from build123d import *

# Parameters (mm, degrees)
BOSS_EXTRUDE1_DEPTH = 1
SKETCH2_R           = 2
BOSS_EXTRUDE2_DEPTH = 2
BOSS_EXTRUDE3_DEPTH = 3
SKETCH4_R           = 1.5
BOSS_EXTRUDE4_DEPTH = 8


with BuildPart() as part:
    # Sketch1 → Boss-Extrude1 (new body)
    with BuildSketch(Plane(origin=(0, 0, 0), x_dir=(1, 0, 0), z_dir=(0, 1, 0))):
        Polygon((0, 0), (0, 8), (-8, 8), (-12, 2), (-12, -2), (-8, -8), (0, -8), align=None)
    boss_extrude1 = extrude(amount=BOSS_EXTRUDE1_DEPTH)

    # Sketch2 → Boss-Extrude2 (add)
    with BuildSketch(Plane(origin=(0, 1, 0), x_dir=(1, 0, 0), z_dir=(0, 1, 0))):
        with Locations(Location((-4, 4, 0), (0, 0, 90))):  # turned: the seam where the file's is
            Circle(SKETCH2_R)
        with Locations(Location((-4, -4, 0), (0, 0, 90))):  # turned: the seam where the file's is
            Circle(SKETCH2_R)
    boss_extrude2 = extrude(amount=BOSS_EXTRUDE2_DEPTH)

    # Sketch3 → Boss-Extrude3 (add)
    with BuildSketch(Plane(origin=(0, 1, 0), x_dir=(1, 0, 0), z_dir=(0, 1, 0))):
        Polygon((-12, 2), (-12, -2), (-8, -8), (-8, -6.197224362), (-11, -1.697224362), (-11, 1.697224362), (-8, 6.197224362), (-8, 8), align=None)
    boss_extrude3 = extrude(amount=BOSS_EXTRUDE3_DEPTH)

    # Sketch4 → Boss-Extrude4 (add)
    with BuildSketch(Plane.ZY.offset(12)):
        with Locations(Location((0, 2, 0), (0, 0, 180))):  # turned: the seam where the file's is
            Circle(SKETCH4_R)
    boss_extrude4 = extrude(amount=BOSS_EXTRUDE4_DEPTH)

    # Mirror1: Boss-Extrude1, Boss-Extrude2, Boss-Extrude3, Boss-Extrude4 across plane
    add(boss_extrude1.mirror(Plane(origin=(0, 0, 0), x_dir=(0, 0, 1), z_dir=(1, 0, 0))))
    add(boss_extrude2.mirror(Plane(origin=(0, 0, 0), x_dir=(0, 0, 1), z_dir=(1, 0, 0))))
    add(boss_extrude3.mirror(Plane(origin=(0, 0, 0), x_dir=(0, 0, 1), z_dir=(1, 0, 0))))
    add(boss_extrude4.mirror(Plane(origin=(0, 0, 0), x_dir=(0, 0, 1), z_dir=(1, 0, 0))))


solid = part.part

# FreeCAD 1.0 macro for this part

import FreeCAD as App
import Part
import Sketcher

doc = App.newDocument("Part")
body = doc.addObject("PartDesign::Body", "Body")

sketch1 = body.newObject("Sketcher::SketchObject", "Sketch")
sketch1.AttachmentSupport = (doc.getObject("XZ_Plane"), [""])
sketch1.MapMode = "FlatFace"
sketch1.addGeometry(Part.LineSegment(App.Vector(0, -8, 0), App.Vector(-8, -8, 0)), False)
sketch1.addGeometry(Part.LineSegment(App.Vector(-8, -8, 0), App.Vector(-12, -2, 0)), False)
sketch1.addGeometry(Part.LineSegment(App.Vector(-12, -2, 0), App.Vector(-12, 2, 0)), False)
sketch1.addGeometry(Part.LineSegment(App.Vector(-12, 2, 0), App.Vector(-8, 8, 0)), False)
sketch1.addGeometry(Part.LineSegment(App.Vector(-8, 8, 0), App.Vector(0, 8, 0)), False)
sketch1.addGeometry(Part.LineSegment(App.Vector(0, 8, 0), App.Vector(0, -8, 0)), False)
sketch1.addConstraint(Sketcher.Constraint("Coincident", 0, 2, 1, 1))
sketch1.addConstraint(Sketcher.Constraint("Coincident", 1, 2, 2, 1))
sketch1.addConstraint(Sketcher.Constraint("Coincident", 2, 2, 3, 1))
sketch1.addConstraint(Sketcher.Constraint("Coincident", 3, 2, 4, 1))
sketch1.addConstraint(Sketcher.Constraint("Coincident", 4, 2, 5, 1))
sketch1.addConstraint(Sketcher.Constraint("Coincident", 5, 2, 0, 1))
sketch1.addConstraint(Sketcher.Constraint("Horizontal", 0))
sketch1.addConstraint(Sketcher.Constraint("Vertical", 2))
sketch1.addConstraint(Sketcher.Constraint("Horizontal", 4))
sketch1.addConstraint(Sketcher.Constraint("Vertical", 5))
sketch1.addConstraint(Sketcher.Constraint("Symmetric", 4, 2, 5, 2, -1, 1))
sketch1.addConstraint(Sketcher.Constraint("Vertical", 0, 2, 3, 2))
sketch1.addConstraint(Sketcher.Constraint("Equal", 1, 3))
sketch1.addConstraint(Sketcher.Constraint("DistanceX", 0, 2, 0, 1, 8.0))
sketch1.addConstraint(Sketcher.Constraint("DistanceY", 2, 1, 2, 2, 4.0))
sketch1.addConstraint(Sketcher.Constraint("DistanceY", 5, 2, 5, 1, 16.0))
sketch1.addConstraint(Sketcher.Constraint("DistanceX", 1, 2, -1, 1, 12.0))
pad1 = body.newObject("PartDesign::Pad", "Pad")
pad1.Profile = sketch1
pad1.Length = 1
pad1.Reversed = True

sketch2 = body.newObject("Sketcher::SketchObject", "Sketch001")
sketch2.AttachmentSupport = (doc.getObject("XZ_Plane"), [""])
sketch2.MapMode = "FlatFace"
sketch2.AttachmentOffset = App.Placement(App.Vector(0, 0, -1), App.Rotation())
sketch2.addGeometry(Part.Circle(App.Vector(-4, -4, 0), App.Vector(0, 0, 1), 2), False)
sketch2.addGeometry(Part.Circle(App.Vector(-4, 4, 0), App.Vector(0, 0, 1), 2), False)
sketch2.addConstraint(Sketcher.Constraint("Equal", 0, 1))
sketch2.addConstraint(Sketcher.Constraint("Symmetric", 0, 3, 1, 3, -1))
sketch2.addConstraint(Sketcher.Constraint("Diameter", 0, 4.0))
sketch2.addConstraint(Sketcher.Constraint("DistanceX", 0, 3, -1, 1, 4.0))
sketch2.addConstraint(Sketcher.Constraint("DistanceY", 0, 3, -1, 1, 4.0))
pad2 = body.newObject("PartDesign::Pad", "Pad001")
pad2.Profile = sketch2
pad2.Length = 2
pad2.Reversed = True

sketch3 = body.newObject("Sketcher::SketchObject", "Sketch002")
sketch3.AttachmentSupport = (doc.getObject("XZ_Plane"), [""])
sketch3.MapMode = "FlatFace"
sketch3.AttachmentOffset = App.Placement(App.Vector(0, 0, -1), App.Rotation())
sketch3.addGeometry(Part.LineSegment(App.Vector(-12, -2, 0), App.Vector(-12, 2, 0)), False)
sketch3.addGeometry(Part.LineSegment(App.Vector(-12, 2, 0), App.Vector(-8, 8, 0)), False)
sketch3.addGeometry(Part.LineSegment(App.Vector(-8, 8, 0), App.Vector(-8, 6.197224, 0)), False)
sketch3.addGeometry(Part.LineSegment(App.Vector(-8, 6.197224, 0), App.Vector(-11, 1.697224, 0)), False)
sketch3.addGeometry(Part.LineSegment(App.Vector(-11, 1.697224, 0), App.Vector(-11, -1.697224, 0)), False)
sketch3.addGeometry(Part.LineSegment(App.Vector(-11, -1.697224, 0), App.Vector(-8, -6.197224, 0)), False)
sketch3.addGeometry(Part.LineSegment(App.Vector(-8, -6.197224, 0), App.Vector(-8, -8, 0)), False)
sketch3.addGeometry(Part.LineSegment(App.Vector(-8, -8, 0), App.Vector(-12, -2, 0)), False)
sketch3.addConstraint(Sketcher.Constraint("Coincident", 0, 2, 1, 1))
sketch3.addConstraint(Sketcher.Constraint("Coincident", 1, 2, 2, 1))
sketch3.addConstraint(Sketcher.Constraint("Coincident", 2, 2, 3, 1))
sketch3.addConstraint(Sketcher.Constraint("Coincident", 3, 2, 4, 1))
sketch3.addConstraint(Sketcher.Constraint("Coincident", 4, 2, 5, 1))
sketch3.addConstraint(Sketcher.Constraint("Coincident", 5, 2, 6, 1))
sketch3.addConstraint(Sketcher.Constraint("Coincident", 6, 2, 7, 1))
sketch3.addConstraint(Sketcher.Constraint("Coincident", 7, 2, 0, 1))
sketch3.addConstraint(Sketcher.Constraint("Vertical", 0))
sketch3.addConstraint(Sketcher.Constraint("Vertical", 2))
sketch3.addConstraint(Sketcher.Constraint("Vertical", 4))
sketch3.addConstraint(Sketcher.Constraint("Vertical", 6))
sketch3.addConstraint(Sketcher.Constraint("Symmetric", 2, 2, 5, 2, -1))
sketch3.addConstraint(Sketcher.Constraint("Parallel", 1, 3))
sketch3.addConstraint(Sketcher.Constraint("Parallel", 5, 7))
sketch3.addConstraint(Sketcher.Constraint("Equal", 2, 6))
sketch3.addConstraint(Sketcher.Constraint("Equal", 3, 5))
sketch3.addConstraint(Sketcher.Constraint("DistanceY", 0, 1, 0, 2, 4.0))
sketch3.addConstraint(Sketcher.Constraint("DistanceX", 0, 2, -1, 1, 12.0))
sketch3.addConstraint(Sketcher.Constraint("DistanceX", 1, 2, -1, 1, 8.0))
sketch3.addConstraint(Sketcher.Constraint("DistanceY", -1, 1, 1, 2, 8.0))
sketch3.addConstraint(Sketcher.Constraint("DistanceX", 3, 2, -1, 1, 11.0))
sketch3.addConstraint(Sketcher.Constraint("DistanceY", 4, 2, 4, 1, 3.394449))
pad3 = body.newObject("PartDesign::Pad", "Pad002")
pad3.Profile = sketch3
pad3.Length = 3
pad3.Reversed = True

sketch4 = body.newObject("Sketcher::SketchObject", "Sketch003")
sketch4.AttachmentSupport = (doc.getObject("YZ_Plane"), [""])
sketch4.MapMode = "FlatFace"
sketch4.AttachmentOffset = App.Placement(App.Vector(0, 0, -12), App.Rotation())
sketch4.addGeometry(Part.Circle(App.Vector(2, 0, 0), App.Vector(0, 0, 1), 1.5), False)
sketch4.addConstraint(Sketcher.Constraint("PointOnObject", 0, 3, -1))
sketch4.addConstraint(Sketcher.Constraint("Diameter", 0, 3.0))
sketch4.addConstraint(Sketcher.Constraint("DistanceX", -1, 1, 0, 3, 2.0))
pad4 = body.newObject("PartDesign::Pad", "Pad003")
pad4.Profile = sketch4
pad4.Length = 8
pad4.Reversed = True
doc.recompute()

mirrored = body.newObject("PartDesign::Mirrored", "Mirrored")
mirrored.Originals = [pad1, pad2, pad3, pad4]
mirrored.MirrorPlane = (doc.getObject("YZ_Plane"), [""])
body.Tip = mirrored

doc.recompute()
